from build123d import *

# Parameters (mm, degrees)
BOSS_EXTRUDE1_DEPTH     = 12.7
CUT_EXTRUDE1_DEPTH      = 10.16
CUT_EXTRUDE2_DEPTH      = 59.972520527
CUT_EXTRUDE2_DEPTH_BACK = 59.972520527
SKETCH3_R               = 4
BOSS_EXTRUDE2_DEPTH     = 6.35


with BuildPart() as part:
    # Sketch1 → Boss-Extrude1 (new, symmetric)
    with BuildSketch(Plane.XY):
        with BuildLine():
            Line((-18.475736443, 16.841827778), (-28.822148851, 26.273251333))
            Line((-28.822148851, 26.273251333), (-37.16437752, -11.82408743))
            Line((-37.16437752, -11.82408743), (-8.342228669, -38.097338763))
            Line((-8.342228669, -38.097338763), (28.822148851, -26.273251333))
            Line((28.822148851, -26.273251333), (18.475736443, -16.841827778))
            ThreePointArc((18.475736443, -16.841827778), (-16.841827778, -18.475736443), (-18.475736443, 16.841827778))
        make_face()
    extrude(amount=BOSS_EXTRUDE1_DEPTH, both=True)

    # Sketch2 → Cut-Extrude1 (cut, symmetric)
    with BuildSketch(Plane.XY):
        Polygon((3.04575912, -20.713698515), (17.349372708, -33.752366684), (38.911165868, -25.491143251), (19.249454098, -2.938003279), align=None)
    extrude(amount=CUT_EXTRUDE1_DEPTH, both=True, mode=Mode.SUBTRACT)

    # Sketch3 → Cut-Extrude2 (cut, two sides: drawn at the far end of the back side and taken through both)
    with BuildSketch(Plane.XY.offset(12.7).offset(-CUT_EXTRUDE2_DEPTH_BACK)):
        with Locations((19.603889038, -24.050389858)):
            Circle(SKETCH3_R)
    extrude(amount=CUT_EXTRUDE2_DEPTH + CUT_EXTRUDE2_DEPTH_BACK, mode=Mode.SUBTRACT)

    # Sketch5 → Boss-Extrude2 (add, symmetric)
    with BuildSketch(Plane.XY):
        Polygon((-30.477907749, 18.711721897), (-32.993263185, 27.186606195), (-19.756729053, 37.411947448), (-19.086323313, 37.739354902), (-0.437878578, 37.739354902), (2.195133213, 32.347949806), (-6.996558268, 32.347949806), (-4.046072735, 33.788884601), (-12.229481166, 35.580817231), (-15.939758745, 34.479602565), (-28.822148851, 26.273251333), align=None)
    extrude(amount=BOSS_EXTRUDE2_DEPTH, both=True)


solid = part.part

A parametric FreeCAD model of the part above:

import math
import FreeCAD as App
import Part
import Sketcher
from FreeCAD import Vector
Q = App.Units.Quantity

doc = App.newDocument("Part")
body = doc.addObject("PartDesign::Body", "Body")

# Sketch on XY plane
sketch1 = body.newObject("Sketcher::SketchObject", "Sketch")
sketch1.AttachmentSupport = (doc.getObject("XY_Plane"), [""])
sketch1.MapMode = "FlatFace"
sketch1.addGeometry([
    Part.LineSegment(Vector(-18.475736, 16.841828, 0), Vector(-28.822149, 26.273251, 0)),  # 0
    Part.LineSegment(Vector(-28.822149, 26.273251, 0), Vector(-37.164378, -11.824087, 0)),  # 1
    Part.LineSegment(Vector(-37.164378, -11.824087, 0), Vector(-8.342229, -38.097339, 0)),  # 2
    Part.LineSegment(Vector(-8.342229, -38.097339, 0), Vector(28.822149, -26.273251, 0)),  # 3
    Part.LineSegment(Vector(28.822149, -26.273251, 0), Vector(18.475736, -16.841828, 0)),  # 4
    Part.ArcOfCircle(Part.Circle(Vector(0, 0, 0), Vector(0, 0, 1), 25), math.radians(137.648806), math.radians(317.648806)),  # 5
], False)
sketch1.addConstraint([
    Sketcher.Constraint("Coincident", 0, 2, 1, 1),
    Sketcher.Constraint("Coincident", 1, 2, 2, 1),
    Sketcher.Constraint("Coincident", 2, 2, 3, 1),
    Sketcher.Constraint("Coincident", 3, 2, 4, 1),
    Sketcher.Constraint("Coincident", 4, 2, 5, 2),
    Sketcher.Constraint("Coincident", 5, 1, 0, 1),
    Sketcher.Constraint("Coincident", 5, 3, -1, 1),
    Sketcher.Constraint("Symmetric", 0, 2, 3, 2, -1, 1),
    Sketcher.Constraint("Parallel", 0, 2),
    Sketcher.Constraint("Parallel", 2, 4),
    Sketcher.Constraint("Equal", 1, 2),
    Sketcher.Constraint("Equal", 2, 3),
    Sketcher.Constraint("Radius", 5, Q("25 mm")),
    Sketcher.Constraint("Distance", 0, Q("14 mm")),
    Sketcher.Constraint("Distance", 1, Q("39 mm")),
    Sketcher.Constraint("DistanceX", 0, 2, -1, 1, Q("28.822149 mm")),
    Sketcher.Constraint("DistanceX", 2, 2, -1, 1, Q("8.342229 mm")),
])
pad1 = body.newObject("PartDesign::Pad", "Pad")
pad1.Profile = sketch1
pad1.Length = 25.4
pad1.Midplane = True

# Sketch on XY plane
sketch2 = body.newObject("Sketcher::SketchObject", "Sketch001")
sketch2.AttachmentSupport = (doc.getObject("XY_Plane"), [""])
sketch2.MapMode = "FlatFace"
sketch2.addGeometry([
    Part.LineSegment(Vector(3.045759, -20.713699, 0), Vector(17.349373, -33.752367, 0)),
    Part.LineSegment(Vector(17.349373, -33.752367, 0), Vector(38.911166, -25.491143, 0)),
    Part.LineSegment(Vector(38.911166, -25.491143, 0), Vector(19.249454, -2.938003, 0)),
    Part.LineSegment(Vector(19.249454, -2.938003, 0), Vector(3.045759, -20.713699, 0)),
], False)
sketch2.addConstraint([
    Sketcher.Constraint("Coincident", 0, 2, 1, 1),
    Sketcher.Constraint("Coincident", 1, 2, 2, 1),
    Sketcher.Constraint("Coincident", 2, 2, 3, 1),
    Sketcher.Constraint("Coincident", 3, 2, 0, 1),
    Sketcher.Constraint("Perpendicular", 0, 3),
    Sketcher.Constraint("DistanceY", 3, 2, -1, 1, Q("20.713699 mm")),
    Sketcher.Constraint("Distance", 0, Q("19.354592 mm")),
    Sketcher.Constraint("Distance", 1, Q("23.09023 mm")),
    Sketcher.Constraint("DistanceX", -1, 1, 3, 2, Q("3.045759 mm")),
    Sketcher.Constraint("DistanceX", 2, 2, 1, 2, Q("19.661712 mm")),
    Sketcher.Constraint("DistanceY", 1, 2, 2, 2, Q("22.55314 mm")),
    Sketcher.Constraint("DistanceX", 0, 2, 2, 2, Q("1.900081 mm")),
])
pocket1 = body.newObject("PartDesign::Pocket", "Pocket")
pocket1.Profile = sketch2
pocket1.Length = 20.32
pocket1.Midplane = True

# Sketch on XY plane
sketch3 = body.newObject("Sketcher::SketchObject", "Sketch002")
sketch3.AttachmentSupport = (doc.getObject("XY_Plane"), [""])
sketch3.MapMode = "FlatFace"
sketch3.AttachmentOffset = App.Placement(Vector(0, 0, 12.7), App.Rotation())
sketch3.addGeometry(Part.Circle(Vector(19.603889, -24.05039, 0), Vector(0, 0, 1), 4), False)
sketch3.addConstraint([
    Sketcher.Constraint("Diameter", 0, Q("8 mm")),
    Sketcher.Constraint("DistanceX", -1, 1, 0, 3, Q("19.603889 mm")),
    Sketcher.Constraint("DistanceY", 0, 3, -1, 1, Q("24.05039 mm")),
])
pocket2 = body.newObject("PartDesign::Pocket", "Pocket001")
pocket2.Profile = sketch3
pocket2.Type = "ThroughAll"
pocket2.Midplane = True

# Sketch on XY plane
sketch4 = body.newObject("Sketcher::SketchObject", "Sketch003")
sketch4.AttachmentSupport = (doc.getObject("XY_Plane"), [""])
sketch4.MapMode = "FlatFace"
sketch4.addGeometry([
    Part.LineSegment(Vector(-32.993263, 27.186606, 0), Vector(-30.477908, 18.711722, 0)),  # 0
    Part.LineSegment(Vector(-30.477908, 18.711722, 0), Vector(-28.822149, 26.273251, 0)),  # 1
    Part.LineSegment(Vector(-28.822149, 26.273251, 0), Vector(-15.939759, 34.479603, 0)),  # 2
    Part.LineSegment(Vector(-15.939759, 34.479603, 0), Vector(-12.229481, 35.580817, 0)),  # 3
    Part.LineSegment(Vector(-12.229481, 35.580817, 0), Vector(-4.046073, 33.788885, 0)),  # 4
    Part.LineSegment(Vector(-4.046073, 33.788885, 0), Vector(-6.996558, 32.34795, 0)),  # 5
    Part.LineSegment(Vector(-6.996558, 32.34795, 0), Vector(2.195133, 32.34795, 0)),  # 6
    Part.LineSegment(Vector(2.195133, 32.34795, 0), Vector(-0.437879, 37.739355, 0)),  # 7
    Part.LineSegment(Vector(-0.437879, 37.739355, 0), Vector(-19.086323, 37.739355, 0)),  # 8
    Part.LineSegment(Vector(-19.086323, 37.739355, 0), Vector(-19.756729, 37.411947, 0)),  # 9
    Part.LineSegment(Vector(-19.756729, 37.411947, 0), Vector(-32.993263, 27.186606, 0)),  # 10
], False)
sketch4.addConstraint([
    Sketcher.Constraint("Coincident", 0, 2, 1, 1),
    Sketcher.Constraint("Coincident", 1, 2, 2, 1),
    Sketcher.Constraint("Coincident", 2, 2, 3, 1),
    Sketcher.Constraint("Coincident", 3, 2, 4, 1),
    Sketcher.Constraint("Coincident", 4, 2, 5, 1),
    Sketcher.Constraint("Coincident", 5, 2, 6, 1),
    Sketcher.Constraint("Coincident", 6, 2, 7, 1),
    Sketcher.Constraint("Coincident", 7, 2, 8, 1),
    Sketcher.Constraint("Coincident", 8, 2, 9, 1),
    Sketcher.Constraint("Coincident", 9, 2, 10, 1),
    Sketcher.Constraint("Coincident", 10, 2, 0, 1),
    Sketcher.Constraint("Horizontal", 6),
    Sketcher.Constraint("Horizontal", 8),
    Sketcher.Constraint("Perpendicular", 0, 3),
    Sketcher.Constraint("Perpendicular", 1, 4),
    Sketcher.Constraint("Perpendicular", 5, 7),
    Sketcher.Constraint("Perpendicular", 7, 9),
    Sketcher.Constraint("Distance", 7, Q("6 mm")),
    Sketcher.Constraint("DistanceX", 6, 1, 6, 2, Q("9.191691 mm")),
    Sketcher.Constraint("DistanceX", 2, 2, 5, 2, Q("8.9432 mm")),
    Sketcher.Constraint("DistanceY", 1, 2, 5, 2, Q("6.074698 mm")),
    Sketcher.Constraint("Distance", 1, Q("7.740689 mm")),
    Sketcher.Constraint("Distance", 3, Q("3.87025 mm")),
    Sketcher.Constraint("Distance", 10, Q("16.72613 mm")),
    Sketcher.Constraint("DistanceX", 8, 2, 8, 1, Q("18.648445 mm")),
    Sketcher.Constraint("DistanceY", -1, 1, 0, 2, Q("18.711722 mm")),
    Sketcher.Constraint("DistanceX", 1, 2, -1, 1, Q("28.822149 mm")),
    Sketcher.Constraint("DistanceY", -1, 1, 1, 2, Q("26.273251 mm")),
    Sketcher.Constraint("DistanceX", 2, 2, -1, 1, Q("15.939759 mm")),
    Sketcher.Constraint("DistanceX", 3, 2, -1, 1, Q("12.229481 mm")),
    Sketcher.Constraint("DistanceX", 7, 2, -1, 1, Q("0.437879 mm")),
    Sketcher.Constraint("DistanceX", 9, 2, -1, 1, Q("19.756729 mm")),
    Sketcher.Constraint("DistanceY", 1, 2, 2, 2, Q("8.206351 mm")),
])
pad2 = body.newObject("PartDesign::Pad", "Pad001")
pad2.Profile = sketch4
pad2.Length = 12.7
pad2.Midplane = True

doc.recompute()
